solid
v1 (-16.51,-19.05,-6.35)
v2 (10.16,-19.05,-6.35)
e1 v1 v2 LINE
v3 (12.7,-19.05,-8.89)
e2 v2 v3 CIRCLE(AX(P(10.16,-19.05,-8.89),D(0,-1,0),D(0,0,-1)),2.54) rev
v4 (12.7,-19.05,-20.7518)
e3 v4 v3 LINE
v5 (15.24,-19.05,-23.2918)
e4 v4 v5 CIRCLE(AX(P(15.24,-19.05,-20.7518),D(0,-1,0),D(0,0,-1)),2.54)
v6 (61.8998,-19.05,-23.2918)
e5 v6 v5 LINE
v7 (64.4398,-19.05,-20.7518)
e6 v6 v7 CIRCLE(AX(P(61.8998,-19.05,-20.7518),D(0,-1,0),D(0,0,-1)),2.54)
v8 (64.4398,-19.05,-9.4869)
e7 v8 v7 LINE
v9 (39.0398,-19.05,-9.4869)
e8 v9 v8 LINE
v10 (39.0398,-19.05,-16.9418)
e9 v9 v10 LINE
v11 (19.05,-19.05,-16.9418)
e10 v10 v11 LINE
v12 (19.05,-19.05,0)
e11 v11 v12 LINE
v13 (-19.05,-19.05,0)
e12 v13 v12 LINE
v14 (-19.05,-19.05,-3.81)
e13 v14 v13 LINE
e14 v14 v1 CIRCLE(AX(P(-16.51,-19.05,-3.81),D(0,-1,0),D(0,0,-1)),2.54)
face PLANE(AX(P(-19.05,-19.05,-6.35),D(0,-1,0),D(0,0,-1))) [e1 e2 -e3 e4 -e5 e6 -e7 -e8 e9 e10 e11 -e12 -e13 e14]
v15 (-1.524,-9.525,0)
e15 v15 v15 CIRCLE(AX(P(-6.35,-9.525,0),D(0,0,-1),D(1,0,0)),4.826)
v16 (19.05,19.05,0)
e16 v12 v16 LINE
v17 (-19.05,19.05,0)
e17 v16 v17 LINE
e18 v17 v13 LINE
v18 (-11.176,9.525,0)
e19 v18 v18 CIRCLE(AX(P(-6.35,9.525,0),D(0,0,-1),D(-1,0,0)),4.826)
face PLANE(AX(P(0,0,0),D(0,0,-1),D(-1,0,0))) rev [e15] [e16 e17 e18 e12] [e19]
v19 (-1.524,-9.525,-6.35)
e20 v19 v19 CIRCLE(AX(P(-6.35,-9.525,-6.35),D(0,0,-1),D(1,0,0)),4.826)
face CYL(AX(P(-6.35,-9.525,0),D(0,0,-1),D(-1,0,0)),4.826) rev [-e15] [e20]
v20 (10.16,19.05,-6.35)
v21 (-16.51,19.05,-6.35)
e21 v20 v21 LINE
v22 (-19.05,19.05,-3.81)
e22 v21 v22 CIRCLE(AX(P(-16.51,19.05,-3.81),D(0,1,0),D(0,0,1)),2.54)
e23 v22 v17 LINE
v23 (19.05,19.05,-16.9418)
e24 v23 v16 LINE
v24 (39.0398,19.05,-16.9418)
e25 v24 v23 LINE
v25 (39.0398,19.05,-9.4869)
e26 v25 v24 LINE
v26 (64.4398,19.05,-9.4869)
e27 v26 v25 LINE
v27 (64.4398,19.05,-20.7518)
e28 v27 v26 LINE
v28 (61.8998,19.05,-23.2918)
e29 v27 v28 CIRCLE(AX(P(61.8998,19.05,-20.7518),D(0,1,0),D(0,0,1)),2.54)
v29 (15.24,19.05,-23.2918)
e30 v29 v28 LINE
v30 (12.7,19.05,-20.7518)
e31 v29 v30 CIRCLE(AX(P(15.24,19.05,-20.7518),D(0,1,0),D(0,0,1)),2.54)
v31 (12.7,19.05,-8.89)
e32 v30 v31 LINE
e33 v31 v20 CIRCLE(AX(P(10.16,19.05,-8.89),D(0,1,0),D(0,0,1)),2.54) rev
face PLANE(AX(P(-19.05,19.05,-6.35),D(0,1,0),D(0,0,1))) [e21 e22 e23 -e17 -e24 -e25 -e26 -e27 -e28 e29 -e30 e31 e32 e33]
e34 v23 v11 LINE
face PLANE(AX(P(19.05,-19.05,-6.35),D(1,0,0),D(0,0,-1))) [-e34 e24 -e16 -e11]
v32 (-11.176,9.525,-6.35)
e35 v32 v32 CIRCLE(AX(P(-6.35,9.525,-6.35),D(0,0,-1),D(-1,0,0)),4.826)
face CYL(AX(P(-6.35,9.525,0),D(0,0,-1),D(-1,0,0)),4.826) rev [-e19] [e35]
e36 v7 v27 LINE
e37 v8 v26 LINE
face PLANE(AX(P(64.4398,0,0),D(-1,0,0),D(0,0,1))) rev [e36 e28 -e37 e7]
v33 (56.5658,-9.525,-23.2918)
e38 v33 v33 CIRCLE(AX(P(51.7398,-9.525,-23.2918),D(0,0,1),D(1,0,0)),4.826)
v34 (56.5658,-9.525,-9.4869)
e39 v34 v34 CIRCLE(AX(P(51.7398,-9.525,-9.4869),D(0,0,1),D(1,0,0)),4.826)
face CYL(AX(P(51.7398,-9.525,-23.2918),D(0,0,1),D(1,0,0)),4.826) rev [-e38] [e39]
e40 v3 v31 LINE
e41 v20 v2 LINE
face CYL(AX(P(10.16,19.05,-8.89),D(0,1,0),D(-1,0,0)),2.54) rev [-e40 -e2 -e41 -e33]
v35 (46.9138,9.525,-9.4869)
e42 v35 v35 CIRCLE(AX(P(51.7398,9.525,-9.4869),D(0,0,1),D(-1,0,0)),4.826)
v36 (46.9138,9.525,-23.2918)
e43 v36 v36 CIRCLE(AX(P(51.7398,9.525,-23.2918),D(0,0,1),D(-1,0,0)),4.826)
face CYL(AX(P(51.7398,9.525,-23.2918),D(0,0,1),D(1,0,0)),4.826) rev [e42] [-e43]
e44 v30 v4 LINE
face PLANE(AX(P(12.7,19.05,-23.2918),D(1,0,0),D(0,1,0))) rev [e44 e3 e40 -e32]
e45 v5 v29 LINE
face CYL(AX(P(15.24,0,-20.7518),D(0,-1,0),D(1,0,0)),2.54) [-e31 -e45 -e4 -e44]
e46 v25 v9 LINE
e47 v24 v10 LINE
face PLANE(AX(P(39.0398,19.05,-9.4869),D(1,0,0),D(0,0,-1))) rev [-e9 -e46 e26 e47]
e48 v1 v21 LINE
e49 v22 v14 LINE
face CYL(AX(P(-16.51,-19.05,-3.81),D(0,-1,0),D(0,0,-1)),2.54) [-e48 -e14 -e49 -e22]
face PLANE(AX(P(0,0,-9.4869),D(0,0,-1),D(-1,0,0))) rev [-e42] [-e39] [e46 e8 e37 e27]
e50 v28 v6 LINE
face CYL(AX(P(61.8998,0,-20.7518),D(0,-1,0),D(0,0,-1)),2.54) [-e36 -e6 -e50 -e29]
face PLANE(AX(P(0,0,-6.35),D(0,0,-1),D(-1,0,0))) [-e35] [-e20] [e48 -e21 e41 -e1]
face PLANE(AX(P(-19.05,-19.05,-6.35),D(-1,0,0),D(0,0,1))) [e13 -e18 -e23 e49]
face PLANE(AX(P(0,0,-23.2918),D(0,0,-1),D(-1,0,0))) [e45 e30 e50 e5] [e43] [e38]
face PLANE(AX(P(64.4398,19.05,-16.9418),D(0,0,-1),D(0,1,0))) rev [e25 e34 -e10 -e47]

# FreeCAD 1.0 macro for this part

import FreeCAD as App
import Part
import Sketcher
from FreeCAD import Vector
Q = App.Units.Quantity


def edges_at(feature, points):
    """Names of the edges that pass closest to the given points."""
    edges = feature.Shape.Edges
    near = lambda p: min(range(len(edges)), key=lambda i: edges[i].distToShape(Part.Vertex(*p))[0])
    return sorted({f"Edge{near(p) + 1}" for p in points})


def add_polygon(sketch, points):
    """Adds a closed chain of lines whose ends are joined by coincident constraints."""
    first, n = sketch.GeometryCount, len(points)
    for a, b in zip(points, points[1:] + points[:1]):
        sketch.addGeometry(Part.LineSegment(App.Vector(*a, 0), App.Vector(*b, 0)), False)
    for i in range(n):
        sketch.addConstraint(Sketcher.Constraint("Coincident", first + i, 2, first + (i + 1) % n, 1))

doc = App.newDocument("Part")
body = doc.addObject("PartDesign::Body", "Body")

# Sketch on XY plane
sketch1 = body.newObject("Sketcher::SketchObject", "Sketch")
sketch1.AttachmentSupport = (doc.getObject("XY_Plane"), [""])
sketch1.MapMode = "FlatFace"
add_polygon(sketch1, [(-19, 19), (-19, -19), (19, -19), (19, 19)])  # lines 0-3
sketch1.addConstraint([
    Sketcher.Constraint("Vertical", 0),
    Sketcher.Constraint("Horizontal", 1),
    Sketcher.Constraint("Vertical", 2),
    Sketcher.Constraint("Horizontal", 3),
    Sketcher.Constraint("Symmetric", 0, 2, 2, 2, -1, 1),
    Sketcher.Constraint("Equal", 3, 0),
    Sketcher.Constraint("DistanceX", 1, 1, 1, 2, Q("1.5 in")),
])
pad1 = body.newObject("PartDesign::Pad", "Pad")
pad1.Profile = sketch1
pad1.Length = Q("0.25 in")
pad1.Reversed = True

# Sketch on XY plane
sketch2 = body.newObject("Sketcher::SketchObject", "Sketch001")
sketch2.AttachmentSupport = (doc.getObject("XY_Plane"), [""])
sketch2.MapMode = "FlatFace"
sketch2.AttachmentOffset = App.Placement(Vector(0, 0, -0.25 * 25.4), App.Rotation())
add_polygon(sketch2, [(19, 19), (19, -19), (13, -19), (13, 19)])  # lines 0-3
sketch2.addConstraint([
    Sketcher.Constraint("Vertical", 0),
    Sketcher.Constraint("Horizontal", 1),
    Sketcher.Constraint("Vertical", 2),
    Sketcher.Constraint("Horizontal", 3),
    Sketcher.Constraint("DistanceY", 0, 2, 0, 1, Q("1.5 in")),
    Sketcher.Constraint("DistanceX", 1, 2, 1, 1, Q("0.25 in")),
    Sketcher.Constraint("DistanceX", -1, 1, 1, 2, Q("0.5 in")),
    Sketcher.Constraint("DistanceY", 0, 2, -1, 1, Q("0.75 in")),
])
pad2 = body.newObject("PartDesign::Pad", "Pad001")
pad2.Profile = sketch2
pad2.Length = Q("0.667 in")
pad2.Reversed = True

# Sketch on YZ plane
sketch3 = body.newObject("Sketcher::SketchObject", "Sketch002")
sketch3.AttachmentSupport = (doc.getObject("YZ_Plane"), [""])
sketch3.MapMode = "FlatFace"
sketch3.AttachmentOffset = App.Placement(Vector(0, 0, 0.75 * 25.4), App.Rotation())
add_polygon(sketch3, [(19, -17), (-19, -17), (-19, -23), (19, -23)])  # lines 0-3
sketch3.addConstraint([
    Sketcher.Constraint("Horizontal", 0),
    Sketcher.Constraint("Vertical", 1),
    Sketcher.Constraint("Horizontal", 2),
    Sketcher.Constraint("Vertical", 3),
    Sketcher.Constraint("DistanceX", 0, 2, 0, 1, Q("1.5 in")),
    Sketcher.Constraint("DistanceY", 1, 2, 1, 1, Q("0.25 in")),
    Sketcher.Constraint("DistanceX", 0, 2, -1, 1, Q("0.75 in")),
    Sketcher.Constraint("DistanceY", 0, 2, -1, 1, Q("0.667 in")),
])
pad3 = body.newObject("PartDesign::Pad", "Pad002")
pad3.Profile = sketch3
pad3.Length = Q("1.787 in")

# Sketch on XY plane
sketch4 = body.newObject("Sketcher::SketchObject", "Sketch003")
sketch4.AttachmentSupport = (doc.getObject("XY_Plane"), [""])
sketch4.MapMode = "FlatFace"
sketch4.AttachmentOffset = App.Placement(Vector(0, 0, -0.667 * 25.4), App.Rotation())
add_polygon(sketch4, [(39, 19), (39, -19), (64, -19), (64, 19)])  # lines 0-3
sketch4.addConstraint([
    Sketcher.Constraint("Vertical", 0),
    Sketcher.Constraint("Horizontal", 1),
    Sketcher.Constraint("Vertical", 2),
    Sketcher.Constraint("Horizontal", 3),
    Sketcher.Constraint("DistanceX", 1, 1, 1, 2, Q("1 in")),
    Sketcher.Constraint("DistanceY", 0, 2, 0, 1, Q("1.5 in")),
    Sketcher.Constraint("DistanceY", 0, 2, -1, 1, Q("0.75 in")),
    Sketcher.Constraint("DistanceX", -1, 1, 0, 2, Q("1.537 in")),
])
pad4 = body.newObject("PartDesign::Pad", "Pad003")
pad4.Profile = sketch4
pad4.Length = Q("0.2935 in")

# Sketch on XY plane
sketch5 = body.newObject("Sketcher::SketchObject", "Sketch004")
sketch5.AttachmentSupport = (doc.getObject("XY_Plane"), [""])
sketch5.MapMode = "FlatFace"
sketch5.AttachmentOffset = App.Placement(Vector(0, 0, -0.25 * 25.4), App.Rotation())
sketch5.addGeometry([
    Part.Circle(Vector(-6.3, 9.5, 0), Vector(0, 0, 1), 4.8),
    Part.Circle(Vector(-6.3, -9.5, 0), Vector(0, 0, 1), 4.8),
], False)
sketch5.addConstraint([
    Sketcher.Constraint("Equal", 0, 1),
    Sketcher.Constraint("Symmetric", 0, 3, 1, 3, -1),
    Sketcher.Constraint("Diameter", 0, Q("0.38 in")),
    Sketcher.Constraint("DistanceX", 0, 3, -1, 1, Q("0.25 in")),
    Sketcher.Constraint("DistanceY", 1, 3, 0, 3, Q("0.75 in")),
])
pocket1 = body.newObject("PartDesign::Pocket", "Pocket")
pocket1.Profile = sketch5
pocket1.Type = "ThroughAll"
pocket1.Reversed = True

# Sketch on XY plane
sketch6 = body.newObject("Sketcher::SketchObject", "Sketch005")
sketch6.AttachmentSupport = (doc.getObject("XY_Plane"), [""])
sketch6.MapMode = "FlatFace"
sketch6.AttachmentOffset = App.Placement(Vector(0, 0, -0.3735 * 25.4), App.Rotation())
sketch6.addGeometry([
    Part.Circle(Vector(51.7, -9.5, 0), Vector(0, 0, 1), 4.8),
    Part.Circle(Vector(51.7, 9.5, 0), Vector(0, 0, 1), 4.8),
], False)
sketch6.addConstraint([
    Sketcher.Constraint("Equal", 0, 1),
    Sketcher.Constraint("Symmetric", 0, 3, 1, 3, -1),
    Sketcher.Constraint("Diameter", 0, Q("0.38 in")),
    Sketcher.Constraint("DistanceY", 0, 3, 1, 3, Q("0.75 in")),
    Sketcher.Constraint("DistanceX", -1, 1, 0, 3, Q("2.037 in")),
])
pocket2 = body.newObject("PartDesign::Pocket", "Pocket001")
pocket2.Profile = sketch6
pocket2.Type = "ThroughAll"
doc.recompute()

fillet = body.newObject("PartDesign::Fillet", "Fillet")
fillet.Base = (pocket2, edges_at(pocket2, [
    (-19.05, 0, -6.35),
    (12.7, 0, -6.35),
    (12.7, 0, -23.292),
    (64.44, 0, -23.292),
]))
fillet.Radius = Q("0.1 in")

doc.recompute()
